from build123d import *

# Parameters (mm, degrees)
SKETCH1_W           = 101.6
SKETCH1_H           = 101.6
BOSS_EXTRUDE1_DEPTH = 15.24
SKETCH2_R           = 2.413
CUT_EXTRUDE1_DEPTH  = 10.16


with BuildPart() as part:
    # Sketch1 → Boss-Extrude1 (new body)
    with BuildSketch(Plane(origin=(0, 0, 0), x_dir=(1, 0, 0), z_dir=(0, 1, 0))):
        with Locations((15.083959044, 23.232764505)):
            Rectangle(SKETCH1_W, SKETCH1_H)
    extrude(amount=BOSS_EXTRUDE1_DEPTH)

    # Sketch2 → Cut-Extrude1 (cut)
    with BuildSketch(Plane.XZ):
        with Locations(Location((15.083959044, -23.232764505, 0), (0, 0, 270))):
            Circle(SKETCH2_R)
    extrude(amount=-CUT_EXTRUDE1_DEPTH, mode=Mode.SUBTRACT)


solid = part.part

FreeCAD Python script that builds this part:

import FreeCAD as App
import Part
import Sketcher

V = App.Vector
Q = App.Units.Quantity


def add_polygon(sketch, points):
    """Adds a closed chain of lines whose ends are joined by coincident constraints."""
    first, n = sketch.GeometryCount, len(points)
    for a, b in zip(points, points[1:] + points[:1]):
        sketch.addGeometry(Part.LineSegment(App.Vector(*a, 0), App.Vector(*b, 0)), False)
    for i in range(n):
        sketch.addConstraint(Sketcher.Constraint("Coincident", first + i, 2, first + (i + 1) % n, 1))

doc = App.newDocument("Part")
params = doc.addObject("Spreadsheet::Sheet", "Params")
for row, (alias, value) in enumerate([
    ("sketch1_width", "4 in"),
    ("pad1_length", "0.6 in"),
    ("sketch2_diameter", "0.19 in"),
    ("pocket1_length", "0.4 in"),
], start=1):
    params.set(f"A{row}", alias)
    params.set(f"B{row}", "=" + value)
    params.setAlias(f"B{row}", alias)

body = doc.addObject("PartDesign::Body", "Body")

# Sketch on XZ plane
sketch1 = body.newObject("Sketcher::SketchObject", "Sketch")
sketch1.AttachmentSupport = (doc.getObject("XZ_Plane"), [""])
sketch1.MapMode = "FlatFace"
add_polygon(sketch1, [(-36, -74), (-36, 28), (66, 28), (66, -74)])  # lines 0-3
sketch1.addConstraint([
    Sketcher.Constraint("Vertical", 0),
    Sketcher.Constraint("Horizontal", 1),
    Sketcher.Constraint("Vertical", 2),
    Sketcher.Constraint("Horizontal", 3),
    Sketcher.Constraint("Equal", 3, 0),
    Sketcher.Constraint("DistanceX", 1, 1, 1, 2, Q("4 in")),
    Sketcher.Constraint("DistanceX", 0, 2, -1, 1, Q("35.716041 mm")),
    Sketcher.Constraint("DistanceY", -1, 1, 0, 2, Q("27.567235 mm")),
])
sketch1.setExpression("Constraints[9]", "Params.sketch1_width")
pad1 = body.newObject("PartDesign::Pad", "Pad")
pad1.Profile = sketch1
pad1.setExpression("Length", "Params.pad1_length")
pad1.Reversed = True

# Sketch on XZ plane
sketch2 = body.newObject("Sketcher::SketchObject", "Sketch001")
sketch2.AttachmentSupport = (doc.getObject("XZ_Plane"), [""])
sketch2.MapMode = "FlatFace"
sketch2.addGeometry(Part.Circle(V(15.1, -23.2, 0), V(0, 0, 1), 2.4), False)
sketch2.addConstraint([
    Sketcher.Constraint("Diameter", 0, Q("0.19 in")),
    Sketcher.Constraint("DistanceX", -1, 1, 0, 3, Q("15.083959 mm")),
    Sketcher.Constraint("DistanceY", 0, 3, -1, 1, Q("23.232765 mm")),
])
sketch2.setExpression("Constraints[0]", "Params.sketch2_diameter")
pocket1 = body.newObject("PartDesign::Pocket", "Pocket")
pocket1.Profile = sketch2
pocket1.setExpression("Length", "Params.pocket1_length")

doc.recompute()
